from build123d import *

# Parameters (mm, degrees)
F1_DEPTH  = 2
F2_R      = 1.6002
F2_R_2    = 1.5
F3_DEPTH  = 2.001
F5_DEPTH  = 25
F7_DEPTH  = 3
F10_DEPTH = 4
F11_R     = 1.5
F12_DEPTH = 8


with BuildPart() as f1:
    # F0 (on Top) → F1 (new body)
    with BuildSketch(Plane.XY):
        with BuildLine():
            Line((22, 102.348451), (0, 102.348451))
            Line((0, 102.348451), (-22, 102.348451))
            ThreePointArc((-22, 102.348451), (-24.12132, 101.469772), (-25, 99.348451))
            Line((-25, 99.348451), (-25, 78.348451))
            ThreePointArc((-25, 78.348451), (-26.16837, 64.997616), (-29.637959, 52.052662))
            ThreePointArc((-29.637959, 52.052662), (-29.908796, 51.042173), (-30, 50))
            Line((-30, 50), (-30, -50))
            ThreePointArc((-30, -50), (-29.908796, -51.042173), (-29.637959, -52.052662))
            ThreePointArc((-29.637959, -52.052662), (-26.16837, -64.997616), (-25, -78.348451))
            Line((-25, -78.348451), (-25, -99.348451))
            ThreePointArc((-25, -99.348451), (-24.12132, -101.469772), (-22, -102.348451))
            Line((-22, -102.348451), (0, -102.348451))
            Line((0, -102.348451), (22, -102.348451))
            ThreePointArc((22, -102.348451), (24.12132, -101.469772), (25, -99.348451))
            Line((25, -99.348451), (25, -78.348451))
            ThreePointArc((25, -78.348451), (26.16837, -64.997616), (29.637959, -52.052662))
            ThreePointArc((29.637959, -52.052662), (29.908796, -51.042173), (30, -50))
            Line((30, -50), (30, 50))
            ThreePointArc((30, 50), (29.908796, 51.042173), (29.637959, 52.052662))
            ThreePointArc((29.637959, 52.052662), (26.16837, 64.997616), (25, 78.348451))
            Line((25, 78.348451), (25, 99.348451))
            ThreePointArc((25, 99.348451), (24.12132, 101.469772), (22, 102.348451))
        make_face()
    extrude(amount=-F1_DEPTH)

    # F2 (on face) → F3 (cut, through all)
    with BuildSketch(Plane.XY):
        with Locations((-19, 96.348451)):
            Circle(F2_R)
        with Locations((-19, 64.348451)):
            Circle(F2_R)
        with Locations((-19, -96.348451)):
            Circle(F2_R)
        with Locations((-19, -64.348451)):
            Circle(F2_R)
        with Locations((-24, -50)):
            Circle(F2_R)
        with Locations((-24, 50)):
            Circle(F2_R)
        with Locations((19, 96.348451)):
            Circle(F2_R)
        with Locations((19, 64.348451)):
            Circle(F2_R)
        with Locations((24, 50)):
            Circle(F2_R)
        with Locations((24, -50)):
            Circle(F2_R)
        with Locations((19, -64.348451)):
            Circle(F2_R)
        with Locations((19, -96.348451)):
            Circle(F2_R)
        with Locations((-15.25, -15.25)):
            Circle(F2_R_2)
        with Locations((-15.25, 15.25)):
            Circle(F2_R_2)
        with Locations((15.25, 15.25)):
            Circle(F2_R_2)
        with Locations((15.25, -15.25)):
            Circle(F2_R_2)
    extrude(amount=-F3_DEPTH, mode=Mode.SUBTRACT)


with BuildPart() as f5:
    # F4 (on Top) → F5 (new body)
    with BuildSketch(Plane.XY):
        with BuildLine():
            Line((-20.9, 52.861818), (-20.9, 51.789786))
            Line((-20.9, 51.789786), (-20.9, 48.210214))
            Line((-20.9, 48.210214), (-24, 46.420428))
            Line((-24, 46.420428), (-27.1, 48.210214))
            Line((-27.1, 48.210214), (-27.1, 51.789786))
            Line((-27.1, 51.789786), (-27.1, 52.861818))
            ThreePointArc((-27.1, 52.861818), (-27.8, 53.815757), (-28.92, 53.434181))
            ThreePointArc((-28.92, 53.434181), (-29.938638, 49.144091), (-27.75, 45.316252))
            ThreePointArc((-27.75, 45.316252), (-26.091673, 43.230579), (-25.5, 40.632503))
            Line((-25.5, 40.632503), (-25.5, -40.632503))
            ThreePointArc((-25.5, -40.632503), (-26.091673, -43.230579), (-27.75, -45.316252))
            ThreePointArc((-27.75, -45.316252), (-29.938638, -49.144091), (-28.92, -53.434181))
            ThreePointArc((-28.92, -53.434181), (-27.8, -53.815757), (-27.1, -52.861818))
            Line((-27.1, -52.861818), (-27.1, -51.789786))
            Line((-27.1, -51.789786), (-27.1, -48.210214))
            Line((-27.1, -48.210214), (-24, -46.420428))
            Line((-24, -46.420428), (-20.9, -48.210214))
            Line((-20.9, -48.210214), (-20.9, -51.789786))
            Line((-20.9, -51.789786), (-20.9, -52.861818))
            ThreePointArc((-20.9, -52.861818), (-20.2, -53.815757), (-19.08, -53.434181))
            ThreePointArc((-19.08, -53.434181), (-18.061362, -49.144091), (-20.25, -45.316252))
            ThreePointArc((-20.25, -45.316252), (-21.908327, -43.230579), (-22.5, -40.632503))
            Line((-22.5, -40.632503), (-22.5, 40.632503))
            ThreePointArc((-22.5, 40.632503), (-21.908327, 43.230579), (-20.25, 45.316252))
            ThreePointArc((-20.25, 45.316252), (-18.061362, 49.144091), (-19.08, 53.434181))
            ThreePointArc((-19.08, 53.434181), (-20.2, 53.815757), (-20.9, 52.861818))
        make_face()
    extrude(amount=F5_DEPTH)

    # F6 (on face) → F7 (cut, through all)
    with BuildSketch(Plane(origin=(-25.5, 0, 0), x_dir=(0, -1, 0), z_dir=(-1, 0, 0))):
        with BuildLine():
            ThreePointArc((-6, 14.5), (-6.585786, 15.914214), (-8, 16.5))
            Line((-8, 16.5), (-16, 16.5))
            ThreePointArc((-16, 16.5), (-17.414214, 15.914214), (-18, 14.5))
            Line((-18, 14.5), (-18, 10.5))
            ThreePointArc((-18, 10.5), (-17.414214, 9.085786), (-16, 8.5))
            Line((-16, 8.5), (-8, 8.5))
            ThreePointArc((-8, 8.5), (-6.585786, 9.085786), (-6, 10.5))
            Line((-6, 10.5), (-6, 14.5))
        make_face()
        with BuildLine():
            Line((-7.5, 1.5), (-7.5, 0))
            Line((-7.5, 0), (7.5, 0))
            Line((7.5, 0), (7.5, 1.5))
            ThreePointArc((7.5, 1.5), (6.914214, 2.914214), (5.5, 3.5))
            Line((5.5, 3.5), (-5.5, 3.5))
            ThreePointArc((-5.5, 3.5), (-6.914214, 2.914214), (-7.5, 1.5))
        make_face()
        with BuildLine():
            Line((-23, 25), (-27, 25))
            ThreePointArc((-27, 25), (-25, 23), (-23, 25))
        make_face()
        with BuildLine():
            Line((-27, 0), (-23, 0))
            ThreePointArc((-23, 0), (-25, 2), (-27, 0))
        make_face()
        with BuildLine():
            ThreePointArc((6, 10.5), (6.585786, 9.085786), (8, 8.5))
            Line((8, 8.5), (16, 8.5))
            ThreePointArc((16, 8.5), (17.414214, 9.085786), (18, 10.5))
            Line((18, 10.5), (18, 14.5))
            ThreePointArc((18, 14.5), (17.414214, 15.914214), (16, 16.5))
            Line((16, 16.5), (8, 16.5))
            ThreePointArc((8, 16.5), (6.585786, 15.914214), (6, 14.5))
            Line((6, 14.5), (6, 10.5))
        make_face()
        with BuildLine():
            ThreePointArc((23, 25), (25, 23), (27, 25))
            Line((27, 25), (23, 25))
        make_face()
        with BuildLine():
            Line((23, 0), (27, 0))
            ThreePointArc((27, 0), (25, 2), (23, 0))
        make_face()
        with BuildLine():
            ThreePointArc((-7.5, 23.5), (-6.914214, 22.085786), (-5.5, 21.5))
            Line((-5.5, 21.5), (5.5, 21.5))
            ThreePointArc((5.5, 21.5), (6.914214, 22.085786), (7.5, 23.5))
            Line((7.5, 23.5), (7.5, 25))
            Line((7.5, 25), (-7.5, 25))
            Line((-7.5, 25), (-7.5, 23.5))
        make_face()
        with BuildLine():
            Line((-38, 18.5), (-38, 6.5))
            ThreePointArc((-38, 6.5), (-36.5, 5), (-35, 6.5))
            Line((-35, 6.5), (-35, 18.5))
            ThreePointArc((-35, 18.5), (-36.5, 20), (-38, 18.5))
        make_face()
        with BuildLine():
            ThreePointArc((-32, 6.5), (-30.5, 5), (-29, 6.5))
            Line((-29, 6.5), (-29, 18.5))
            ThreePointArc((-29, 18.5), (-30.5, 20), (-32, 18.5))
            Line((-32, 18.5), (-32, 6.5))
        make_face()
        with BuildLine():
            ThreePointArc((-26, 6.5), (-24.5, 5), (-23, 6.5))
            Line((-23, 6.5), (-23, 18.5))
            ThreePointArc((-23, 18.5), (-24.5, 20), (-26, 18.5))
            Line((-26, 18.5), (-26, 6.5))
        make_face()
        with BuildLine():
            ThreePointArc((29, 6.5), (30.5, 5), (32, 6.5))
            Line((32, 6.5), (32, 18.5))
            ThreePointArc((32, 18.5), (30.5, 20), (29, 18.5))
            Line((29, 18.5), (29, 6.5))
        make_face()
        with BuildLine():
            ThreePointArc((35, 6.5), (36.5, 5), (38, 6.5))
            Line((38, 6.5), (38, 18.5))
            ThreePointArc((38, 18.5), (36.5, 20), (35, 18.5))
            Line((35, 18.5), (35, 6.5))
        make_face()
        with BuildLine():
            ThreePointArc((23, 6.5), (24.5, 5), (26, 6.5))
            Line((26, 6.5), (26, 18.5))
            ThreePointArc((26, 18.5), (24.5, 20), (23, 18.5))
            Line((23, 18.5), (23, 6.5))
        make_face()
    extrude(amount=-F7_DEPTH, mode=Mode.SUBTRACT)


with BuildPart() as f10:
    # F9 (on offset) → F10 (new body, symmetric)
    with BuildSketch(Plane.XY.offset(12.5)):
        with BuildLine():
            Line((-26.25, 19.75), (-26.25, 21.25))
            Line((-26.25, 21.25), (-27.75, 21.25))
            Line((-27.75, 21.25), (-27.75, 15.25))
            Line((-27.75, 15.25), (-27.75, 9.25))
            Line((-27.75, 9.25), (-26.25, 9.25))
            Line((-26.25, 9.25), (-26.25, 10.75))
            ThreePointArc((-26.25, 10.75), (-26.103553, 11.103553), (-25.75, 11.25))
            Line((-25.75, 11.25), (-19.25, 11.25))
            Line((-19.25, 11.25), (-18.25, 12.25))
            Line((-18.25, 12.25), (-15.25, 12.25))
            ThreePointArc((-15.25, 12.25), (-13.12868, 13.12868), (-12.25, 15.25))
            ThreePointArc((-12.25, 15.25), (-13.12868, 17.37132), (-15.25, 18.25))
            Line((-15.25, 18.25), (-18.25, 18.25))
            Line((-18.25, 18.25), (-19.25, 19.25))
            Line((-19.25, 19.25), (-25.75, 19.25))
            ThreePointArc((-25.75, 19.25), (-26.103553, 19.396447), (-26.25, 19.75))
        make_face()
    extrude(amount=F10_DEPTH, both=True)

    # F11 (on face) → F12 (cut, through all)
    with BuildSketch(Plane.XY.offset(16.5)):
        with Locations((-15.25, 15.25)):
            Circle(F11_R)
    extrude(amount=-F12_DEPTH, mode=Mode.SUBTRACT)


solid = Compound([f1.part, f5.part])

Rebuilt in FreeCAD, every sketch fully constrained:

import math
import FreeCAD as App
import Part
import Sketcher
Q = App.Units.Quantity

doc = App.newDocument("Part")
body = doc.addObject("PartDesign::Body", "Body")

sketch1 = body.newObject("Sketcher::SketchObject", "Sketch")
sketch1.AttachmentSupport = (doc.getObject("XY_Plane"), [""])
sketch1.MapMode = "FlatFace"
sketch1.addGeometry([
    Part.LineSegment(App.Vector(22, 102.3, 0), App.Vector(-22, 102.3, 0)),
    Part.ArcOfCircle(Part.Circle(App.Vector(-22, 99.3, 0), App.Vector(0, 0, 1), 3), math.radians(90), math.radians(180)),
    Part.LineSegment(App.Vector(-25, 99.3, 0), App.Vector(-25, 78.3, 0)),
    Part.ArcOfCircle(Part.Circle(App.Vector(-101.9, 78.3, 0), App.Vector(0, 0, 1), 76.9), math.radians(-20), math.radians(0)),
    Part.ArcOfCircle(Part.Circle(App.Vector(-24, 50, 0), App.Vector(0, 0, 1), 6), math.radians(160), math.radians(180)),
    Part.LineSegment(App.Vector(-30, 50, 0), App.Vector(-30, -50, 0)),
    Part.ArcOfCircle(Part.Circle(App.Vector(-24, -50, 0), App.Vector(0, 0, 1), 6), math.radians(-180), math.radians(-160)),
    Part.ArcOfCircle(Part.Circle(App.Vector(-101.9, -78.3, 0), App.Vector(0, 0, 1), 76.9), math.radians(0), math.radians(20)),
    Part.LineSegment(App.Vector(-25, -78.3, 0), App.Vector(-25, -99.3, 0)),
    Part.ArcOfCircle(Part.Circle(App.Vector(-22, -99.3, 0), App.Vector(0, 0, 1), 3), math.radians(180), math.radians(270)),
    Part.LineSegment(App.Vector(-22, -102.3, 0), App.Vector(22, -102.3, 0)),
    Part.ArcOfCircle(Part.Circle(App.Vector(22, -99.3, 0), App.Vector(0, 0, 1), 3), math.radians(-90), math.radians(0)),
    Part.LineSegment(App.Vector(25, -99.3, 0), App.Vector(25, -78.3, 0)),
    Part.ArcOfCircle(Part.Circle(App.Vector(101.9, -78.3, 0), App.Vector(0, 0, 1), 76.9), math.radians(160), math.radians(180)),
    Part.ArcOfCircle(Part.Circle(App.Vector(24, -50, 0), App.Vector(0, 0, 1), 6), math.radians(-20), math.radians(0)),
    Part.LineSegment(App.Vector(30, -50, 0), App.Vector(30, 50, 0)),
    Part.ArcOfCircle(Part.Circle(App.Vector(24, 50, 0), App.Vector(0, 0, 1), 6), math.radians(0), math.radians(20)),
    Part.ArcOfCircle(Part.Circle(App.Vector(101.9, 78.3, 0), App.Vector(0, 0, 1), 76.9), math.radians(-180), math.radians(-160)),
    Part.LineSegment(App.Vector(25, 78.3, 0), App.Vector(25, 99.3, 0)),
    Part.ArcOfCircle(Part.Circle(App.Vector(22, 99.3, 0), App.Vector(0, 0, 1), 3), math.radians(0), math.radians(90)),
], False)
sketch1.addConstraint([
    Sketcher.Constraint("Tangent", 0, 2, 1, 1),
    Sketcher.Constraint("Tangent", 1, 2, 2, 1),
    Sketcher.Constraint("Tangent", 2, 2, 3, 2),
    Sketcher.Constraint("Tangent", 3, 1, 4, 1),
    Sketcher.Constraint("Tangent", 4, 2, 5, 1),
    Sketcher.Constraint("Tangent", 5, 2, 6, 1),
    Sketcher.Constraint("Tangent", 6, 2, 7, 2),
    Sketcher.Constraint("Tangent", 7, 1, 8, 1),
    Sketcher.Constraint("Tangent", 8, 2, 9, 1),
    Sketcher.Constraint("Tangent", 9, 2, 10, 1),
    Sketcher.Constraint("Tangent", 10, 2, 11, 1),
    Sketcher.Constraint("Tangent", 11, 2, 12, 1),
    Sketcher.Constraint("Tangent", 12, 2, 13, 2),
    Sketcher.Constraint("Tangent", 13, 1, 14, 1),
    Sketcher.Constraint("Tangent", 14, 2, 15, 1),
    Sketcher.Constraint("Tangent", 15, 2, 16, 1),
    Sketcher.Constraint("Tangent", 16, 2, 17, 2),
    Sketcher.Constraint("Tangent", 17, 1, 18, 1),
    Sketcher.Constraint("Tangent", 18, 2, 19, 1),
    Sketcher.Constraint("Tangent", 19, 2, 0, 1),
    Sketcher.Constraint("Horizontal", 0),
    Sketcher.Constraint("Vertical", 2),
    Sketcher.Constraint("Vertical", 5),
    Sketcher.Constraint("Vertical", 8),
    Sketcher.Constraint("Horizontal", 10),
    Sketcher.Constraint("Vertical", 12),
    Sketcher.Constraint("Vertical", 15),
    Sketcher.Constraint("Vertical", 18),
    Sketcher.Constraint("Equal", 4, 6),
    Sketcher.Constraint("Equal", 3, 7),
    Sketcher.Constraint("Equal", 1, 9),
    Sketcher.Constraint("Equal", 9, 11),
    Sketcher.Constraint("Equal", 7, 13),
    Sketcher.Constraint("Equal", 6, 14),
    Sketcher.Constraint("Equal", 14, 16),
    Sketcher.Constraint("Equal", 13, 17),
    Sketcher.Constraint("Equal", 11, 19),
    Sketcher.Constraint("Symmetric", 1, 3, 11, 3, -1, 1),
    Sketcher.Constraint("Symmetric", 4, 3, 14, 3, -1, 1),
    Sketcher.Constraint("Symmetric", 7, 3, 17, 3, -1, 1),
    Sketcher.Constraint("Symmetric", 7, 3, 13, 3, -2),
    Sketcher.Constraint("Radius", 1, 2.999999),
    Sketcher.Constraint("DistanceX", 0, 2, 0, 1, 44.0),
    Sketcher.Constraint("DistanceY", 2, 2, 2, 1, 21.0),
    Sketcher.Constraint("DistanceY", 5, 2, 5, 1, 100.0),
    Sketcher.Constraint("DistanceX", 4, 2, -1, 1, 30.0),
    Sketcher.Constraint("Radius", 3, 76.863483),
    Sketcher.Constraint("Radius", 4, 6.000037),
])
pad1 = body.newObject("PartDesign::Pad", "Pad")
pad1.Profile = sketch1
pad1.Length = 2
pad1.Reversed = True

sketch2 = body.newObject("Sketcher::SketchObject", "Sketch001")
sketch2.AttachmentSupport = (doc.getObject("XY_Plane"), [""])
sketch2.MapMode = "FlatFace"
sketch2.addGeometry([
    Part.Circle(App.Vector(-19, 96.3, 0), App.Vector(0, 0, 1), 1.6),
    Part.Circle(App.Vector(-19, 64.3, 0), App.Vector(0, 0, 1), 1.6),
    Part.Circle(App.Vector(-19, -96.3, 0), App.Vector(0, 0, 1), 1.6),
    Part.Circle(App.Vector(-19, -64.3, 0), App.Vector(0, 0, 1), 1.6),
    Part.Circle(App.Vector(-24, -50, 0), App.Vector(0, 0, 1), 1.6),
    Part.Circle(App.Vector(-24, 50, 0), App.Vector(0, 0, 1), 1.6),
    Part.Circle(App.Vector(19, 96.3, 0), App.Vector(0, 0, 1), 1.6),
    Part.Circle(App.Vector(19, 64.3, 0), App.Vector(0, 0, 1), 1.6),
    Part.Circle(App.Vector(24, 50, 0), App.Vector(0, 0, 1), 1.6),
    Part.Circle(App.Vector(24, -50, 0), App.Vector(0, 0, 1), 1.6),
    Part.Circle(App.Vector(19, -64.3, 0), App.Vector(0, 0, 1), 1.6),
    Part.Circle(App.Vector(19, -96.3, 0), App.Vector(0, 0, 1), 1.6),
    Part.Circle(App.Vector(-15.2, -15.2, 0), App.Vector(0, 0, 1), 1.5),
    Part.Circle(App.Vector(-15.2, 15.2, 0), App.Vector(0, 0, 1), 1.5),
    Part.Circle(App.Vector(15.2, 15.2, 0), App.Vector(0, 0, 1), 1.5),
    Part.Circle(App.Vector(15.2, -15.2, 0), App.Vector(0, 0, 1), 1.5),
], False)
sketch2.addConstraint([
    Sketcher.Constraint("Equal", 0, 1),
    Sketcher.Constraint("Equal", 1, 2),
    Sketcher.Constraint("Equal", 2, 3),
    Sketcher.Constraint("Equal", 3, 4),
    Sketcher.Constraint("Equal", 4, 5),
    Sketcher.Constraint("Equal", 5, 6),
    Sketcher.Constraint("Equal", 6, 7),
    Sketcher.Constraint("Equal", 7, 8),
    Sketcher.Constraint("Equal", 8, 9),
    Sketcher.Constraint("Equal", 9, 10),
    Sketcher.Constraint("Equal", 10, 11),
    Sketcher.Constraint("Equal", 12, 13),
    Sketcher.Constraint("Equal", 13, 14),
    Sketcher.Constraint("Equal", 14, 15),
    Sketcher.Constraint("Symmetric", 2, 3, 6, 3, -1, 1),
    Sketcher.Constraint("Symmetric", 3, 3, 7, 3, -1, 1),
    Sketcher.Constraint("Symmetric", 4, 3, 8, 3, -1, 1),
    Sketcher.Constraint("Symmetric", 5, 3, 9, 3, -1, 1),
    Sketcher.Constraint("Symmetric", 1, 3, 10, 3, -1, 1),
    Sketcher.Constraint("Symmetric", 0, 3, 11, 3, -1, 1),
    Sketcher.Constraint("Symmetric", 12, 3, 14, 3, -1, 1),
    Sketcher.Constraint("Symmetric", 13, 3, 15, 3, -1, 1),
    Sketcher.Constraint("Symmetric", 0, 3, 6, 3, -2),
    Sketcher.Constraint("Symmetric", 1, 3, 7, 3, -2),
    Sketcher.Constraint("Symmetric", 5, 3, 8, 3, -2),
    Sketcher.Constraint("Symmetric", 13, 3, 14, 3, -2),
    Sketcher.Constraint("Vertical", 0, 3, 1, 3),
    Sketcher.Constraint("Diameter", 12, 3.0),
    Sketcher.Constraint("DistanceX", 0, 3, -1, 1, 19.0),
    Sketcher.Constraint("DistanceX", 4, 3, -1, 1, 24.0),
    Sketcher.Constraint("DistanceY", 4, 3, -1, 1, 50.0),
    Sketcher.Constraint("DistanceY", 1, 3, 0, 3, 32.0),
    Sketcher.Constraint("Diameter", 0, 3.2004),
    Sketcher.Constraint("DistanceY", 12, 3, 13, 3, 30.5),
    Sketcher.Constraint("DistanceX", 13, 3, 14, 3, 30.5),
    Sketcher.Constraint("DistanceY", 2, 3, 1, 3, 160.696902),
])
pocket1 = body.newObject("PartDesign::Pocket", "Pocket")
pocket1.Profile = sketch2
pocket1.Type = "ThroughAll"
body2 = doc.addObject("PartDesign::Body", "Body001")

sketch3 = body2.newObject("Sketcher::SketchObject", "Sketch002")
sketch3.AttachmentSupport = (doc.getObject("XY_Plane001"), [""])
sketch3.MapMode = "FlatFace"
sketch3.addGeometry([
    Part.LineSegment(App.Vector(-20.9, 52.9, 0), App.Vector(-20.9, 48.2, 0)),
    Part.LineSegment(App.Vector(-20.9, 48.2, 0), App.Vector(-24, 46.4, 0)),
    Part.LineSegment(App.Vector(-24, 46.4, 0), App.Vector(-27.1, 48.2, 0)),
    Part.LineSegment(App.Vector(-27.1, 48.2, 0), App.Vector(-27.1, 52.9, 0)),
    Part.ArcOfCircle(Part.Circle(App.Vector(-28.1, 52.9, 0), App.Vector(0, 0, 1), 1), math.radians(0), math.radians(145)),
    Part.ArcOfCircle(Part.Circle(App.Vector(-24, 50, 0), App.Vector(0, 0, 1), 6), math.radians(145), math.radians(231)),
    Part.ArcOfCircle(Part.Circle(App.Vector(-31.5, 40.6, 0), App.Vector(0, 0, 1), 6), math.radians(0), math.radians(51)),
    Part.LineSegment(App.Vector(-25.5, 40.6, 0), App.Vector(-25.5, -40.6, 0)),
    Part.ArcOfCircle(Part.Circle(App.Vector(-31.5, -40.6, 0), App.Vector(0, 0, 1), 6), math.radians(-51), math.radians(0)),
    Part.ArcOfCircle(Part.Circle(App.Vector(-24, -50, 0), App.Vector(0, 0, 1), 6), math.radians(129), math.radians(215)),
    Part.ArcOfCircle(Part.Circle(App.Vector(-28.1, -52.9, 0), App.Vector(0, 0, 1), 1), math.radians(-145), math.radians(0)),
    Part.LineSegment(App.Vector(-27.1, -52.9, 0), App.Vector(-27.1, -48.2, 0)),
    Part.LineSegment(App.Vector(-27.1, -48.2, 0), App.Vector(-24, -46.4, 0)),
    Part.LineSegment(App.Vector(-24, -46.4, 0), App.Vector(-20.9, -48.2, 0)),
    Part.LineSegment(App.Vector(-20.9, -48.2, 0), App.Vector(-20.9, -52.9, 0)),
    Part.ArcOfCircle(Part.Circle(App.Vector(-19.9, -52.9, 0), App.Vector(0, 0, 1), 1), math.radians(-180), math.radians(-35)),
    Part.ArcOfCircle(Part.Circle(App.Vector(-24, -50, 0), App.Vector(0, 0, 1), 6), math.radians(-35), math.radians(51)),
    Part.ArcOfCircle(Part.Circle(App.Vector(-16.5, -40.6, 0), App.Vector(0, 0, 1), 6), math.radians(-180), math.radians(-129)),
    Part.LineSegment(App.Vector(-22.5, -40.6, 0), App.Vector(-22.5, 40.6, 0)),
    Part.ArcOfCircle(Part.Circle(App.Vector(-16.5, 40.6, 0), App.Vector(0, 0, 1), 6), math.radians(129), math.radians(180)),
    Part.ArcOfCircle(Part.Circle(App.Vector(-24, 50, 0), App.Vector(0, 0, 1), 6), math.radians(-51), math.radians(35)),
    Part.ArcOfCircle(Part.Circle(App.Vector(-19.9, 52.9, 0), App.Vector(0, 0, 1), 1), math.radians(35), math.radians(180)),
], False)
sketch3.addConstraint([
    Sketcher.Constraint("Coincident", 0, 2, 1, 1),
    Sketcher.Constraint("Coincident", 1, 2, 2, 1),
    Sketcher.Constraint("Coincident", 2, 2, 3, 1),
    Sketcher.Constraint("Tangent", 3, 2, 4, 1),
    Sketcher.Constraint("Tangent", 4, 2, 5, 1),
    Sketcher.Constraint("Tangent", 5, 2, 6, 2),
    Sketcher.Constraint("Tangent", 6, 1, 7, 1),
    Sketcher.Constraint("Tangent", 7, 2, 8, 2),
    Sketcher.Constraint("Tangent", 8, 1, 9, 1),
    Sketcher.Constraint("Tangent", 9, 2, 10, 1),
    Sketcher.Constraint("Tangent", 10, 2, 11, 1),
    Sketcher.Constraint("Coincident", 11, 2, 12, 1),
    Sketcher.Constraint("Coincident", 12, 2, 13, 1),
    Sketcher.Constraint("Coincident", 13, 2, 14, 1),
    Sketcher.Constraint("Tangent", 14, 2, 15, 1),
    Sketcher.Constraint("Tangent", 15, 2, 16, 1),
    Sketcher.Constraint("Tangent", 16, 2, 17, 2),
    Sketcher.Constraint("Tangent", 17, 1, 18, 1),
    Sketcher.Constraint("Tangent", 18, 2, 19, 2),
    Sketcher.Constraint("Tangent", 19, 1, 20, 1),
    Sketcher.Constraint("Tangent", 20, 2, 21, 1),
    Sketcher.Constraint("Tangent", 21, 2, 0, 1),
    Sketcher.Constraint("Vertical", 0),
    Sketcher.Constraint("Vertical", 3),
    Sketcher.Constraint("Vertical", 7),
    Sketcher.Constraint("Vertical", 11),
    Sketcher.Constraint("Vertical", 14),
    Sketcher.Constraint("Vertical", 18),
    Sketcher.Constraint("Coincident", 16, 3, 9, 3),
    Sketcher.Constraint("Coincident", 20, 3, 5, 3),
    Sketcher.Constraint("Equal", 6, 8),
    Sketcher.Constraint("Equal", 5, 9),
    Sketcher.Constraint("Equal", 4, 10),
    Sketcher.Constraint("Equal", 10, 15),
    Sketcher.Constraint("Equal", 9, 16),
    Sketcher.Constraint("Equal", 8, 17),
    Sketcher.Constraint("Equal", 17, 19),
    Sketcher.Constraint("Equal", 16, 20),
    Sketcher.Constraint("Equal", 15, 21),
    Sketcher.Constraint("Symmetric", 5, 3, 9, 3, -1),
    Sketcher.Constraint("Symmetric", 2, 2, 11, 2, -1),
    Sketcher.Constraint("Symmetric", 1, 2, 12, 2, -1),
    Sketcher.Constraint("Symmetric", 0, 2, 13, 2, -1),
    Sketcher.Constraint("Parallel", 1, 12),
    Sketcher.Constraint("Horizontal", 10, 3, 15, 3),
    Sketcher.Constraint("Horizontal", 8, 3, 17, 3),
    Sketcher.Constraint("Horizontal", 0, 2, 2, 2),
    Sketcher.Constraint("Radius", 4, 1.0),
    Sketcher.Constraint("Radius", 5, 5.999999),
    Sketcher.Constraint("Angle", 1, Q("-149.999998 deg")),
    Sketcher.Constraint("DistanceX", 5, 3, -1, 1, 24.000001),
    Sketcher.Constraint("DistanceY", -1, 1, 5, 3, 50.0),
    Sketcher.Constraint("DistanceX", 7, 2, 17, 1, 3.0),
    Sketcher.Constraint("DistanceX", 4, 3, -1, 1, 28.1),
    Sketcher.Constraint("DistanceX", 6, 3, 5, 3, 7.500001),
    Sketcher.Constraint("DistanceY", 0, 2, 0, 1, 4.651604),
])
pad2 = body2.newObject("PartDesign::Pad", "Pad001")
pad2.Profile = sketch3
pad2.Length = 25

sketch4 = body2.newObject("Sketcher::SketchObject", "Sketch003")
sketch4.AttachmentSupport = (doc.getObject("YZ_Plane001"), [""])
sketch4.MapMode = "FlatFace"
sketch4.AttachmentOffset = App.Placement(App.Vector(0, 0, -25.5), App.Rotation())
sketch4.addGeometry([
    Part.ArcOfCircle(Part.Circle(App.Vector(8, 14.5, 0), App.Vector(0, 0, 1), 2), math.radians(90), math.radians(180)),
    Part.LineSegment(App.Vector(8, 16.5, 0), App.Vector(16, 16.5, 0)),
    Part.ArcOfCircle(Part.Circle(App.Vector(16, 14.5, 0), App.Vector(0, 0, 1), 2), math.radians(0), math.radians(90)),
    Part.LineSegment(App.Vector(18, 14.5, 0), App.Vector(18, 10.5, 0)),
    Part.ArcOfCircle(Part.Circle(App.Vector(16, 10.5, 0), App.Vector(0, 0, 1), 2), math.radians(-90), math.radians(0)),
    Part.LineSegment(App.Vector(16, 8.5, 0), App.Vector(8, 8.5, 0)),
    Part.ArcOfCircle(Part.Circle(App.Vector(8, 10.5, 0), App.Vector(0, 0, 1), 2), math.radians(180), math.radians(270)),
    Part.LineSegment(App.Vector(6, 10.5, 0), App.Vector(6, 14.5, 0)),
    Part.LineSegment(App.Vector(7.5, 1.5, 0), App.Vector(7.5, 0, 0)),
    Part.LineSegment(App.Vector(7.5, 0, 0), App.Vector(-7.5, 0, 0)),
    Part.LineSegment(App.Vector(-7.5, 0, 0), App.Vector(-7.5, 1.5, 0)),
    Part.ArcOfCircle(Part.Circle(App.Vector(-5.5, 1.5, 0), App.Vector(0, 0, 1), 2), math.radians(90), math.radians(180)),
    Part.LineSegment(App.Vector(-5.5, 3.5, 0), App.Vector(5.5, 3.5, 0)),
    Part.ArcOfCircle(Part.Circle(App.Vector(5.5, 1.5, 0), App.Vector(0, 0, 1), 2), math.radians(0), math.radians(90)),
    Part.LineSegment(App.Vector(23, 25, 0), App.Vector(27, 25, 0)),
    Part.ArcOfCircle(Part.Circle(App.Vector(25, 25, 0), App.Vector(0, 0, 1), 2), math.radians(180), math.radians(360)),
    Part.LineSegment(App.Vector(27, 0, 0), App.Vector(23, 0, 0)),
    Part.ArcOfCircle(Part.Circle(App.Vector(25, 0, 0), App.Vector(0, 0, 1), 2), math.radians(0), math.radians(180)),
    Part.ArcOfCircle(Part.Circle(App.Vector(-8, 10.5, 0), App.Vector(0, 0, 1), 2), math.radians(-90), math.radians(0)),
    Part.LineSegment(App.Vector(-8, 8.5, 0), App.Vector(-16, 8.5, 0)),
    Part.ArcOfCircle(Part.Circle(App.Vector(-16, 10.5, 0), App.Vector(0, 0, 1), 2), math.radians(180), math.radians(270)),
    Part.LineSegment(App.Vector(-18, 10.5, 0), App.Vector(-18, 14.5, 0)),
    Part.ArcOfCircle(Part.Circle(App.Vector(-16, 14.5, 0), App.Vector(0, 0, 1), 2), math.radians(90), math.radians(180)),
    Part.LineSegment(App.Vector(-16, 16.5, 0), App.Vector(-8, 16.5, 0)),
    Part.ArcOfCircle(Part.Circle(App.Vector(-8, 14.5, 0), App.Vector(0, 0, 1), 2), math.radians(0), math.radians(90)),
    Part.LineSegment(App.Vector(-6, 14.5, 0), App.Vector(-6, 10.5, 0)),
    Part.ArcOfCircle(Part.Circle(App.Vector(-25, 25, 0), App.Vector(0, 0, 1), 2), math.radians(180), math.radians(360)),
    Part.LineSegment(App.Vector(-27, 25, 0), App.Vector(-23, 25, 0)),
    Part.LineSegment(App.Vector(-23, 0, 0), App.Vector(-27, 0, 0)),
    Part.ArcOfCircle(Part.Circle(App.Vector(-25, 0, 0), App.Vector(0, 0, 1), 2), math.radians(0), math.radians(180)),
    Part.ArcOfCircle(Part.Circle(App.Vector(5.5, 23.5, 0), App.Vector(0, 0, 1), 2), math.radians(-90), math.radians(0)),
    Part.LineSegment(App.Vector(5.5, 21.5, 0), App.Vector(-5.5, 21.5, 0)),
    Part.ArcOfCircle(Part.Circle(App.Vector(-5.5, 23.5, 0), App.Vector(0, 0, 1), 2), math.radians(180), math.radians(270)),
    Part.LineSegment(App.Vector(-7.5, 23.5, 0), App.Vector(-7.5, 25, 0)),
    Part.LineSegment(App.Vector(-7.5, 25, 0), App.Vector(7.5, 25, 0)),
    Part.LineSegment(App.Vector(7.5, 25, 0), App.Vector(7.5, 23.5, 0)),
    Part.LineSegment(App.Vector(38, 18.5, 0), App.Vector(38, 6.5, 0)),
    Part.ArcOfCircle(Part.Circle(App.Vector(36.5, 6.5, 0), App.Vector(0, 0, 1), 1.5), math.radians(180), math.radians(360)),
    Part.LineSegment(App.Vector(35, 6.5, 0), App.Vector(35, 18.5, 0)),
    Part.ArcOfCircle(Part.Circle(App.Vector(36.5, 18.5, 0), App.Vector(0, 0, 1), 1.5), math.radians(0), math.radians(180)),
    Part.ArcOfCircle(Part.Circle(App.Vector(30.5, 6.5, 0), App.Vector(0, 0, 1), 1.5), math.radians(180), math.radians(360)),
    Part.LineSegment(App.Vector(29, 6.5, 0), App.Vector(29, 18.5, 0)),
    Part.ArcOfCircle(Part.Circle(App.Vector(30.5, 18.5, 0), App.Vector(0, 0, 1), 1.5), math.radians(0), math.radians(180)),
    Part.LineSegment(App.Vector(32, 18.5, 0), App.Vector(32, 6.5, 0)),
    Part.ArcOfCircle(Part.Circle(App.Vector(24.5, 6.5, 0), App.Vector(0, 0, 1), 1.5), math.radians(180), math.radians(360)),
    Part.LineSegment(App.Vector(23, 6.5, 0), App.Vector(23, 18.5, 0)),
    Part.ArcOfCircle(Part.Circle(App.Vector(24.5, 18.5, 0), App.Vector(0, 0, 1), 1.5), math.radians(0), math.radians(180)),
    Part.LineSegment(App.Vector(26, 18.5, 0), App.Vector(26, 6.5, 0)),
    Part.ArcOfCircle(Part.Circle(App.Vector(-30.5, 6.5, 0), App.Vector(0, 0, 1), 1.5), math.radians(180), math.radians(360)),
    Part.LineSegment(App.Vector(-32, 6.5, 0), App.Vector(-32, 18.5, 0)),
    Part.ArcOfCircle(Part.Circle(App.Vector(-30.5, 18.5, 0), App.Vector(0, 0, 1), 1.5), math.radians(0), math.radians(180)),
    Part.LineSegment(App.Vector(-29, 18.5, 0), App.Vector(-29, 6.5, 0)),
    Part.ArcOfCircle(Part.Circle(App.Vector(-36.5, 6.5, 0), App.Vector(0, 0, 1), 1.5), math.radians(180), math.radians(360)),
    Part.LineSegment(App.Vector(-38, 6.5, 0), App.Vector(-38, 18.5, 0)),
    Part.ArcOfCircle(Part.Circle(App.Vector(-36.5, 18.5, 0), App.Vector(0, 0, 1), 1.5), math.radians(0), math.radians(180)),
    Part.LineSegment(App.Vector(-35, 18.5, 0), App.Vector(-35, 6.5, 0)),
    Part.ArcOfCircle(Part.Circle(App.Vector(-24.5, 6.5, 0), App.Vector(0, 0, 1), 1.5), math.radians(180), math.radians(360)),
    Part.LineSegment(App.Vector(-26, 6.5, 0), App.Vector(-26, 18.5, 0)),
    Part.ArcOfCircle(Part.Circle(App.Vector(-24.5, 18.5, 0), App.Vector(0, 0, 1), 1.5), math.radians(0), math.radians(180)),
    Part.LineSegment(App.Vector(-23, 18.5, 0), App.Vector(-23, 6.5, 0)),
], False)
sketch4.addConstraint([
    Sketcher.Constraint("Tangent", 0, 1, 1, 1),
    Sketcher.Constraint("Tangent", 1, 2, 2, 2),
    Sketcher.Constraint("Tangent", 2, 1, 3, 1),
    Sketcher.Constraint("Tangent", 3, 2, 4, 2),
    Sketcher.Constraint("Tangent", 4, 1, 5, 1),
    Sketcher.Constraint("Tangent", 5, 2, 6, 2),
    Sketcher.Constraint("Tangent", 6, 1, 7, 1),
    Sketcher.Constraint("Tangent", 7, 2, 0, 2),
    Sketcher.Constraint("Coincident", 8, 2, 9, 1),
    Sketcher.Constraint("Coincident", 9, 2, 10, 1),
    Sketcher.Constraint("Tangent", 10, 2, 11, 2),
    Sketcher.Constraint("Tangent", 11, 1, 12, 1),
    Sketcher.Constraint("Tangent", 12, 2, 13, 2),
    Sketcher.Constraint("Tangent", 13, 1, 8, 1),
    Sketcher.Constraint("Coincident", 14, 1, 15, 1),
    Sketcher.Constraint("Coincident", 15, 2, 14, 2),
    Sketcher.Constraint("Coincident", 16, 1, 17, 1),
    Sketcher.Constraint("Coincident", 17, 2, 16, 2),
    Sketcher.Constraint("Tangent", 18, 1, 19, 1),
    Sketcher.Constraint("Tangent", 19, 2, 20, 2),
    Sketcher.Constraint("Tangent", 20, 1, 21, 1),
    Sketcher.Constraint("Tangent", 21, 2, 22, 2),
    Sketcher.Constraint("Tangent", 22, 1, 23, 1),
    Sketcher.Constraint("Tangent", 23, 2, 24, 2),
    Sketcher.Constraint("Tangent", 24, 1, 25, 1),
    Sketcher.Constraint("Tangent", 25, 2, 18, 2),
    Sketcher.Constraint("Coincident", 26, 1, 27, 1),
    Sketcher.Constraint("Coincident", 27, 2, 26, 2),
    Sketcher.Constraint("Coincident", 28, 1, 29, 1),
    Sketcher.Constraint("Coincident", 29, 2, 28, 2),
    Sketcher.Constraint("Tangent", 30, 1, 31, 1),
    Sketcher.Constraint("Tangent", 31, 2, 32, 2),
    Sketcher.Constraint("Tangent", 32, 1, 33, 1),
    Sketcher.Constraint("Coincident", 33, 2, 34, 1),
    Sketcher.Constraint("Coincident", 34, 2, 35, 1),
    Sketcher.Constraint("Tangent", 35, 2, 30, 2),
    Sketcher.Constraint("Tangent", 36, 2, 37, 2),
    Sketcher.Constraint("Tangent", 37, 1, 38, 1),
    Sketcher.Constraint("Tangent", 38, 2, 39, 2),
    Sketcher.Constraint("Tangent", 39, 1, 36, 1),
    Sketcher.Constraint("Tangent", 40, 1, 41, 1),
    Sketcher.Constraint("Tangent", 41, 2, 42, 2),
    Sketcher.Constraint("Tangent", 42, 1, 43, 1),
    Sketcher.Constraint("Tangent", 43, 2, 40, 2),
    Sketcher.Constraint("Tangent", 44, 1, 45, 1),
    Sketcher.Constraint("Tangent", 45, 2, 46, 2),
    Sketcher.Constraint("Tangent", 46, 1, 47, 1),
    Sketcher.Constraint("Tangent", 47, 2, 44, 2),
    Sketcher.Constraint("Tangent", 48, 1, 49, 1),
    Sketcher.Constraint("Tangent", 49, 2, 50, 2),
    Sketcher.Constraint("Tangent", 50, 1, 51, 1),
    Sketcher.Constraint("Tangent", 51, 2, 48, 2),
    Sketcher.Constraint("Tangent", 52, 1, 53, 1),
    Sketcher.Constraint("Tangent", 53, 2, 54, 2),
    Sketcher.Constraint("Tangent", 54, 1, 55, 1),
    Sketcher.Constraint("Tangent", 55, 2, 52, 2),
    Sketcher.Constraint("Tangent", 56, 1, 57, 1),
    Sketcher.Constraint("Tangent", 57, 2, 58, 2),
    Sketcher.Constraint("Tangent", 58, 1, 59, 1),
    Sketcher.Constraint("Tangent", 59, 2, 56, 2),
    Sketcher.Constraint("Horizontal", 1),
    Sketcher.Constraint("Vertical", 3),
    Sketcher.Constraint("Horizontal", 5),
    Sketcher.Constraint("Vertical", 7),
    Sketcher.Constraint("Vertical", 8),
    Sketcher.Constraint("Horizontal", 9),
    Sketcher.Constraint("Vertical", 10),
    Sketcher.Constraint("Horizontal", 12),
    Sketcher.Constraint("Horizontal", 14),
    Sketcher.Constraint("Horizontal", 16),
    Sketcher.Constraint("Horizontal", 19),
    Sketcher.Constraint("Vertical", 21),
    Sketcher.Constraint("Horizontal", 23),
    Sketcher.Constraint("Vertical", 25),
    Sketcher.Constraint("Horizontal", 27),
    Sketcher.Constraint("Horizontal", 28),
    Sketcher.Constraint("Horizontal", 31),
    Sketcher.Constraint("Vertical", 33),
    Sketcher.Constraint("Horizontal", 34),
    Sketcher.Constraint("Vertical", 35),
    Sketcher.Constraint("Vertical", 36),
    Sketcher.Constraint("Vertical", 38),
    Sketcher.Constraint("Vertical", 41),
    Sketcher.Constraint("Vertical", 43),
    Sketcher.Constraint("Vertical", 45),
    Sketcher.Constraint("Vertical", 47),
    Sketcher.Constraint("Vertical", 49),
    Sketcher.Constraint("Vertical", 51),
    Sketcher.Constraint("Vertical", 53),
    Sketcher.Constraint("Vertical", 55),
    Sketcher.Constraint("Vertical", 57),
    Sketcher.Constraint("Vertical", 59),
    Sketcher.Constraint("Equal", 0, 2),
    Sketcher.Constraint("Equal", 2, 4),
    Sketcher.Constraint("Equal", 4, 6),
    Sketcher.Constraint("Equal", 6, 11),
    Sketcher.Constraint("Equal", 11, 13),
    Sketcher.Constraint("Equal", 13, 15),
    Sketcher.Constraint("Equal", 15, 17),
    Sketcher.Constraint("Equal", 17, 18),
    Sketcher.Constraint("Equal", 18, 20),
    Sketcher.Constraint("Equal", 20, 22),
    Sketcher.Constraint("Equal", 22, 24),
    Sketcher.Constraint("Equal", 24, 26),
    Sketcher.Constraint("Equal", 26, 29),
    Sketcher.Constraint("Equal", 29, 30),
    Sketcher.Constraint("Equal", 30, 32),
    Sketcher.Constraint("Equal", 39, 40),
    Sketcher.Constraint("Equal", 42, 44),
    Sketcher.Constraint("Equal", 46, 48),
    Sketcher.Constraint("Equal", 50, 52),
    Sketcher.Constraint("Equal", 54, 56),
    Sketcher.Constraint("Symmetric", 17, 3, 29, 3, -1, 1),
    Sketcher.Constraint("Symmetric", 8, 2, 9, 2, -1, 1),
    Sketcher.Constraint("Symmetric", 6, 3, 18, 3, -2),
    Sketcher.Constraint("Symmetric", 2, 3, 22, 3, -2),
    Sketcher.Constraint("Symmetric", 15, 3, 26, 3, -2),
    Sketcher.Constraint("Symmetric", 40, 3, 48, 3, -2),
    Sketcher.Constraint("Symmetric", 37, 3, 52, 3, -2),
    Sketcher.Constraint("Symmetric", 44, 3, 56, 3, -2),
    Sketcher.Constraint("PointOnObject", 17, 3, -1),
    Sketcher.Constraint("PointOnObject", 16, 1, -1),
    Sketcher.Constraint("PointOnObject", 28, 1, -1),
    Sketcher.Constraint("Horizontal", 37, 3, 40, 3),
    Sketcher.Constraint("Horizontal", 39, 3, 42, 3),
    Sketcher.Constraint("Horizontal", 40, 3, 44, 3),
    Sketcher.Constraint("Horizontal", 42, 3, 46, 3),
    Sketcher.Constraint("Horizontal", 46, 3, 50, 3),
    Sketcher.Constraint("Horizontal", 50, 3, 54, 3),
    Sketcher.Constraint("Horizontal", 54, 3, 58, 3),
    Sketcher.Constraint("Horizontal", 26, 3, 14, 1),
    Sketcher.Constraint("Horizontal", 15, 2, 26, 1),
    Sketcher.Constraint("Horizontal", 27, 2, 33, 2),
    Sketcher.Constraint("Vertical", 15, 3, 17, 3),
    Sketcher.Constraint("Vertical", 13, 3, 30, 3),
    Sketcher.Constraint("Vertical", 11, 3, 32, 3),
    Sketcher.Constraint("Vertical", 17, 2, 44, 1),
    Sketcher.Constraint("Equal", 28, 3),
    Sketcher.Constraint("Equal", 10, 33),
    Sketcher.Constraint("Radius", 0, 1.999999),
    Sketcher.Constraint("Radius", 37, 1.5),
    Sketcher.Constraint("DistanceX", 1, 1, 1, 2, 8.0),
    Sketcher.Constraint("DistanceX", 9, 2, 9, 1, 15.0),
    Sketcher.Constraint("DistanceY", 36, 2, 36, 1, 12.0),
    Sketcher.Constraint("DistanceY", 8, 2, 8, 1, 1.5),
    Sketcher.Constraint("DistanceX", -1, 1, 0, 3, 7.999999),
    Sketcher.Constraint("DistanceX", -1, 1, 15, 3, 25.0),
    Sketcher.Constraint("DistanceY", -1, 1, 15, 3, 25.0),
    Sketcher.Constraint("DistanceX", -1, 1, 36, 2, 38.0),
    Sketcher.Constraint("DistanceX", -1, 1, 40, 1, 29.0),
    Sketcher.Constraint("DistanceY", -1, 1, 0, 3, 14.500001),
    Sketcher.Constraint("DistanceY", -1, 1, 37, 3, 6.5),
])
pocket2 = body2.newObject("PartDesign::Pocket", "Pocket001")
pocket2.Profile = sketch4
pocket2.Type = "ThroughAll"
pocket2.Reversed = True
body3 = doc.addObject("PartDesign::Body", "Body002")

sketch5 = body3.newObject("Sketcher::SketchObject", "Sketch004")
sketch5.AttachmentSupport = (doc.getObject("XY_Plane002"), [""])
sketch5.MapMode = "FlatFace"
sketch5.AttachmentOffset = App.Placement(App.Vector(0, 0, 12.5), App.Rotation())
sketch5.addGeometry([
    Part.LineSegment(App.Vector(-26.2, 19.8, 0), App.Vector(-26.2, 21.2, 0)),
    Part.LineSegment(App.Vector(-26.2, 21.2, 0), App.Vector(-27.8, 21.2, 0)),
    Part.LineSegment(App.Vector(-27.8, 21.2, 0), App.Vector(-27.8, 9.2, 0)),
    Part.LineSegment(App.Vector(-27.8, 9.2, 0), App.Vector(-26.2, 9.2, 0)),
    Part.LineSegment(App.Vector(-26.2, 9.2, 0), App.Vector(-26.2, 10.8, 0)),
    Part.ArcOfCircle(Part.Circle(App.Vector(-25.7, 10.7, 0), App.Vector(0, 0, 1), 0.5), math.radians(90), math.radians(180)),
    Part.LineSegment(App.Vector(-25.8, 11.2, 0), App.Vector(-19.2, 11.2, 0)),
    Part.LineSegment(App.Vector(-19.2, 11.2, 0), App.Vector(-18.2, 12.2, 0)),
    Part.LineSegment(App.Vector(-18.2, 12.2, 0), App.Vector(-15.2, 12.2, 0)),
    Part.ArcOfCircle(Part.Circle(App.Vector(-15.3, 15.3, 0), App.Vector(0, 0, 1), 3), math.radians(-90), math.radians(0)),
    Part.ArcOfCircle(Part.Circle(App.Vector(-15.3, 15.2, 0), App.Vector(0, 0, 1), 3), math.radians(0), math.radians(90)),
    Part.LineSegment(App.Vector(-15.2, 18.2, 0), App.Vector(-18.2, 18.2, 0)),
    Part.LineSegment(App.Vector(-18.2, 18.2, 0), App.Vector(-19.2, 19.2, 0)),
    Part.LineSegment(App.Vector(-19.2, 19.2, 0), App.Vector(-25.8, 19.2, 0)),
    Part.ArcOfCircle(Part.Circle(App.Vector(-25.7, 19.8, 0), App.Vector(0, 0, 1), 0.5), math.radians(-180), math.radians(-90)),
], False)
sketch5.addConstraint([
    Sketcher.Constraint("Coincident", 0, 2, 1, 1),
    Sketcher.Constraint("Coincident", 1, 2, 2, 1),
    Sketcher.Constraint("Coincident", 2, 2, 3, 1),
    Sketcher.Constraint("Coincident", 3, 2, 4, 1),
    Sketcher.Constraint("Coincident", 4, 2, 5, 2),
    Sketcher.Constraint("Coincident", 5, 1, 6, 1),
    Sketcher.Constraint("Coincident", 6, 2, 7, 1),
    Sketcher.Constraint("Coincident", 7, 2, 8, 1),
    Sketcher.Constraint("Tangent", 8, 2, 9, 1),
    Sketcher.Constraint("Tangent", 9, 2, 10, 1),
    Sketcher.Constraint("Tangent", 10, 2, 11, 1),
    Sketcher.Constraint("Coincident", 11, 2, 12, 1),
    Sketcher.Constraint("Coincident", 12, 2, 13, 1),
    Sketcher.Constraint("Coincident", 13, 2, 14, 2),
    Sketcher.Constraint("Coincident", 14, 1, 0, 1),
    Sketcher.Constraint("Vertical", 0),
    Sketcher.Constraint("Horizontal", 1),
    Sketcher.Constraint("Vertical", 2),
    Sketcher.Constraint("Horizontal", 3),
    Sketcher.Constraint("Vertical", 4),
    Sketcher.Constraint("Horizontal", 6),
    Sketcher.Constraint("Horizontal", 8),
    Sketcher.Constraint("Horizontal", 11),
    Sketcher.Constraint("Horizontal", 13),
    Sketcher.Constraint("Equal", 9, 10),
    Sketcher.Constraint("Equal", 5, 14),
    Sketcher.Constraint("Perpendicular", 7, 12),
    Sketcher.Constraint("Horizontal", 5, 3, 4, 2),
    Sketcher.Constraint("Horizontal", 10, 3, 9, 2),
    Sketcher.Constraint("Vertical", 5, 3, 14, 3),
    Sketcher.Constraint("Vertical", 14, 3, 5, 1),
    Sketcher.Constraint("Vertical", 7, 2, 11, 2),
    Sketcher.Constraint("Vertical", 6, 2, 12, 2),
    Sketcher.Constraint("Vertical", 5, 1, 13, 2),
    Sketcher.Constraint("Equal", 3, 0),
    Sketcher.Constraint("Equal", 0, 4),
    Sketcher.Constraint("Equal", 7, 12),
    Sketcher.Constraint("Radius", 9, 3.000001),
    Sketcher.Constraint("Radius", 5, 0.500001),
    Sketcher.Constraint("DistanceX", 8, 1, 8, 2, 3.0),
    Sketcher.Constraint("DistanceY", 2, 2, 2, 1, 12.0),
    Sketcher.Constraint("DistanceX", 1, 2, 1, 1, 1.5),
    Sketcher.Constraint("DistanceX", 6, 1, 6, 2, 6.5),
    Sketcher.Constraint("DistanceX", 0, 2, 9, 3, 10.999999),
    Sketcher.Constraint("DistanceX", 5, 3, -1, 1, 25.749999),
    Sketcher.Constraint("DistanceY", -1, 1, 5, 3, 10.749999),
])
pad3 = body3.newObject("PartDesign::Pad", "Pad002")
pad3.Profile = sketch5
pad3.Length = 8
pad3.Midplane = True

sketch6 = body3.newObject("Sketcher::SketchObject", "Sketch005")
sketch6.AttachmentSupport = (doc.getObject("XY_Plane002"), [""])
sketch6.MapMode = "FlatFace"
sketch6.AttachmentOffset = App.Placement(App.Vector(0, 0, 16.5), App.Rotation())
sketch6.addGeometry(Part.Circle(App.Vector(-15.2, 15.2, 0), App.Vector(0, 0, 1), 1.5), False)
sketch6.addConstraint([
    Sketcher.Constraint("Diameter", 0, 3.0),
    Sketcher.Constraint("DistanceX", 0, 3, -1, 1, 15.25),
    Sketcher.Constraint("DistanceY", -1, 1, 0, 3, 15.25),
])
pocket3 = body3.newObject("PartDesign::Pocket", "Pocket002")
pocket3.Profile = sketch6
pocket3.Type = "ThroughAll"
body3.Visibility = False

doc.recompute()
